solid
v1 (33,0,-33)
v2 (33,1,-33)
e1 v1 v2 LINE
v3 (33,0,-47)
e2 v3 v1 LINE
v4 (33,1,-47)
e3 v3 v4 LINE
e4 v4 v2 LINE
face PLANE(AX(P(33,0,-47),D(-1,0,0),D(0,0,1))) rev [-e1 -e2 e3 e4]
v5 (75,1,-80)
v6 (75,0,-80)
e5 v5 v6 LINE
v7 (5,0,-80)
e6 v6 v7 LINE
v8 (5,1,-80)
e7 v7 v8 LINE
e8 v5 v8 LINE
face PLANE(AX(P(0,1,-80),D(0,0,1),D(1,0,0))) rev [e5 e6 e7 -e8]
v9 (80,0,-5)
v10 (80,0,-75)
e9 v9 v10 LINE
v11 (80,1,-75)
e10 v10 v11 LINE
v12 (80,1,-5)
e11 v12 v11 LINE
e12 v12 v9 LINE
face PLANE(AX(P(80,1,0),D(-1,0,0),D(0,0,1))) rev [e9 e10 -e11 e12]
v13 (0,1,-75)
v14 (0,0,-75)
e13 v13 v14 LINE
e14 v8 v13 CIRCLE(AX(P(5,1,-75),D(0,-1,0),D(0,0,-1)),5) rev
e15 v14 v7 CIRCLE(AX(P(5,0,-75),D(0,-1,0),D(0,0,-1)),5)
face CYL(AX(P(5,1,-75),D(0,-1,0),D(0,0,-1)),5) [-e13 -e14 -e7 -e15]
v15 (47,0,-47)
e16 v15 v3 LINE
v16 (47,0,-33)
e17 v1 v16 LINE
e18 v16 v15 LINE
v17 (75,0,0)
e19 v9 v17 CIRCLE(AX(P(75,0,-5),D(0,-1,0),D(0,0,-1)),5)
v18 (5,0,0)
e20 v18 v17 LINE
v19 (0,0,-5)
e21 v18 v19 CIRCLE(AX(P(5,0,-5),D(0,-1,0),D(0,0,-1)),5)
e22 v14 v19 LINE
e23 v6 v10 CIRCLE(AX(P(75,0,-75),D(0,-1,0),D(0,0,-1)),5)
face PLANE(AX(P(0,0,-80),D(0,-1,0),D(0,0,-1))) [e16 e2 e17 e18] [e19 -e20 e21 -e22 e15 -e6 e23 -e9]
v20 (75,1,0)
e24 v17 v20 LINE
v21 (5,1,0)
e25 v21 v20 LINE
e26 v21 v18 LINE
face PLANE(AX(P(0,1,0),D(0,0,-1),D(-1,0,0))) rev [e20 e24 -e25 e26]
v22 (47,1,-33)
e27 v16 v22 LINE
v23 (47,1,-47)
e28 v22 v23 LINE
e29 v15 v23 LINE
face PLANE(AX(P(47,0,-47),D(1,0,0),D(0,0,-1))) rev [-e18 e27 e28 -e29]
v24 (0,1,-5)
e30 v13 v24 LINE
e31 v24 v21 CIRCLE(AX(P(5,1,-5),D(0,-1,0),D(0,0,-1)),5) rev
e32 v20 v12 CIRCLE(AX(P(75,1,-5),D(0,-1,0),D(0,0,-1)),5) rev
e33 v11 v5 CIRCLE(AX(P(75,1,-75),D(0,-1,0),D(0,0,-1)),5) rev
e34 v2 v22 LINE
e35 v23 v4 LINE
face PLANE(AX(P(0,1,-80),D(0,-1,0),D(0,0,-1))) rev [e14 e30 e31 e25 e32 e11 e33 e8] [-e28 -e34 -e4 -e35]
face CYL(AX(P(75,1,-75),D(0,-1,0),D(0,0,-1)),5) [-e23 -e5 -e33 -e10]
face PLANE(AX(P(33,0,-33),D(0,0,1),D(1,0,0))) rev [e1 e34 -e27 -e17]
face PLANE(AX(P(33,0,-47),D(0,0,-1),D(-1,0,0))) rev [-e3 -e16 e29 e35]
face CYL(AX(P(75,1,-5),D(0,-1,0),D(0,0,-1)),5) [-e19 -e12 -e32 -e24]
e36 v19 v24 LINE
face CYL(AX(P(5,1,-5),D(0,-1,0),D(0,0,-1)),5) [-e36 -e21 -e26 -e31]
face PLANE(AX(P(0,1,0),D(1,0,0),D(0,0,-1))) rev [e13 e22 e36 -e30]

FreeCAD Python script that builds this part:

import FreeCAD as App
import Part
import Sketcher
from FreeCAD import Vector


def edges_at(feature, points):
    """Names of the edges that pass closest to the given points."""
    edges = feature.Shape.Edges
    near = lambda p: min(range(len(edges)), key=lambda i: edges[i].distToShape(Part.Vertex(*p))[0])
    return sorted({f"Edge{near(p) + 1}" for p in points})

doc = App.newDocument("Part")
params = doc.addObject("Spreadsheet::Sheet", "Params")
for row, (alias, value) in enumerate([
    ("sketch1_width", "80 mm"),
    ("pad1_length", "1 mm"),
    ("fillet_radius", "5 mm"),
    ("sketch2_width", "14 mm"),
], start=1):
    params.set(f"A{row}", alias)
    params.set(f"B{row}", "=" + value)
    params.setAlias(f"B{row}", alias)

body = doc.addObject("PartDesign::Body", "Body")

sketch1 = body.newObject("Sketcher::SketchObject", "Sketch")
sketch1.AttachmentSupport = (doc.getObject("XZ_Plane"), [""])
sketch1.MapMode = "FlatFace"
sketch1.addGeometry([
    Part.LineSegment(Vector(0, -80, 0), Vector(0, 0, 0)),
    Part.LineSegment(Vector(0, 0, 0), Vector(80, 0, 0)),
    Part.LineSegment(Vector(80, 0, 0), Vector(80, -80, 0)),
    Part.LineSegment(Vector(80, -80, 0), Vector(0, -80, 0)),
], False)
sketch1.addConstraint([
    Sketcher.Constraint("Coincident", 0, 2, 1, 1),
    Sketcher.Constraint("Coincident", 1, 2, 2, 1),
    Sketcher.Constraint("Coincident", 2, 2, 3, 1),
    Sketcher.Constraint("Coincident", 3, 2, 0, 1),
    Sketcher.Constraint("Vertical", 0),
    Sketcher.Constraint("Horizontal", 1),
    Sketcher.Constraint("Vertical", 2),
    Sketcher.Constraint("Horizontal", 3),
    Sketcher.Constraint("Coincident", 0, 2, -1, 1),
    Sketcher.Constraint("Equal", 3, 0),
    Sketcher.Constraint("DistanceX", 1, 1, 1, 2, 80.0),
])
sketch1.setExpression("Constraints[10]", "Params.sketch1_width")
pad1 = body.newObject("PartDesign::Pad", "Pad")
pad1.Profile = sketch1
pad1.setExpression("Length", "Params.pad1_length")
pad1.Reversed = True
doc.recompute()

fillet = body.newObject("PartDesign::Fillet", "Fillet")
fillet.Base = (pad1, edges_at(pad1, [
    (0, 0.5, -80),
    (80, 0.5, -80),
    (80, 0.5, 0),
    (0, 0.5, 0),
]))
fillet.setExpression("Radius", "Params.fillet_radius")

sketch2 = body.newObject("Sketcher::SketchObject", "Sketch001")
sketch2.AttachmentSupport = (doc.getObject("XZ_Plane"), [""])
sketch2.MapMode = "FlatFace"
sketch2.AttachmentOffset = App.Placement(Vector(0, 0, -1), App.Rotation())
sketch2.addGeometry([
    Part.LineSegment(Vector(33, -47, 0), Vector(33, -33, 0)),
    Part.LineSegment(Vector(33, -33, 0), Vector(47, -33, 0)),
    Part.LineSegment(Vector(47, -33, 0), Vector(47, -47, 0)),
    Part.LineSegment(Vector(47, -47, 0), Vector(33, -47, 0)),
], False)
sketch2.addConstraint([
    Sketcher.Constraint("Coincident", 0, 2, 1, 1),
    Sketcher.Constraint("Coincident", 1, 2, 2, 1),
    Sketcher.Constraint("Coincident", 2, 2, 3, 1),
    Sketcher.Constraint("Coincident", 3, 2, 0, 1),
    Sketcher.Constraint("Vertical", 0),
    Sketcher.Constraint("Horizontal", 1),
    Sketcher.Constraint("Vertical", 2),
    Sketcher.Constraint("Horizontal", 3),
    Sketcher.Constraint("Equal", 3, 0),
    Sketcher.Constraint("DistanceX", 1, 1, 1, 2, 14.0),
    Sketcher.Constraint("DistanceX", -1, 1, 0, 2, 33.0),
    Sketcher.Constraint("DistanceY", 0, 2, -1, 1, 33.0),
])
sketch2.setExpression("Constraints[9]", "Params.sketch2_width")
pocket1 = body.newObject("PartDesign::Pocket", "Pocket")
pocket1.Profile = sketch2
pocket1.Type = "ThroughAll"
pocket1.Reversed = True

doc.recompute()
